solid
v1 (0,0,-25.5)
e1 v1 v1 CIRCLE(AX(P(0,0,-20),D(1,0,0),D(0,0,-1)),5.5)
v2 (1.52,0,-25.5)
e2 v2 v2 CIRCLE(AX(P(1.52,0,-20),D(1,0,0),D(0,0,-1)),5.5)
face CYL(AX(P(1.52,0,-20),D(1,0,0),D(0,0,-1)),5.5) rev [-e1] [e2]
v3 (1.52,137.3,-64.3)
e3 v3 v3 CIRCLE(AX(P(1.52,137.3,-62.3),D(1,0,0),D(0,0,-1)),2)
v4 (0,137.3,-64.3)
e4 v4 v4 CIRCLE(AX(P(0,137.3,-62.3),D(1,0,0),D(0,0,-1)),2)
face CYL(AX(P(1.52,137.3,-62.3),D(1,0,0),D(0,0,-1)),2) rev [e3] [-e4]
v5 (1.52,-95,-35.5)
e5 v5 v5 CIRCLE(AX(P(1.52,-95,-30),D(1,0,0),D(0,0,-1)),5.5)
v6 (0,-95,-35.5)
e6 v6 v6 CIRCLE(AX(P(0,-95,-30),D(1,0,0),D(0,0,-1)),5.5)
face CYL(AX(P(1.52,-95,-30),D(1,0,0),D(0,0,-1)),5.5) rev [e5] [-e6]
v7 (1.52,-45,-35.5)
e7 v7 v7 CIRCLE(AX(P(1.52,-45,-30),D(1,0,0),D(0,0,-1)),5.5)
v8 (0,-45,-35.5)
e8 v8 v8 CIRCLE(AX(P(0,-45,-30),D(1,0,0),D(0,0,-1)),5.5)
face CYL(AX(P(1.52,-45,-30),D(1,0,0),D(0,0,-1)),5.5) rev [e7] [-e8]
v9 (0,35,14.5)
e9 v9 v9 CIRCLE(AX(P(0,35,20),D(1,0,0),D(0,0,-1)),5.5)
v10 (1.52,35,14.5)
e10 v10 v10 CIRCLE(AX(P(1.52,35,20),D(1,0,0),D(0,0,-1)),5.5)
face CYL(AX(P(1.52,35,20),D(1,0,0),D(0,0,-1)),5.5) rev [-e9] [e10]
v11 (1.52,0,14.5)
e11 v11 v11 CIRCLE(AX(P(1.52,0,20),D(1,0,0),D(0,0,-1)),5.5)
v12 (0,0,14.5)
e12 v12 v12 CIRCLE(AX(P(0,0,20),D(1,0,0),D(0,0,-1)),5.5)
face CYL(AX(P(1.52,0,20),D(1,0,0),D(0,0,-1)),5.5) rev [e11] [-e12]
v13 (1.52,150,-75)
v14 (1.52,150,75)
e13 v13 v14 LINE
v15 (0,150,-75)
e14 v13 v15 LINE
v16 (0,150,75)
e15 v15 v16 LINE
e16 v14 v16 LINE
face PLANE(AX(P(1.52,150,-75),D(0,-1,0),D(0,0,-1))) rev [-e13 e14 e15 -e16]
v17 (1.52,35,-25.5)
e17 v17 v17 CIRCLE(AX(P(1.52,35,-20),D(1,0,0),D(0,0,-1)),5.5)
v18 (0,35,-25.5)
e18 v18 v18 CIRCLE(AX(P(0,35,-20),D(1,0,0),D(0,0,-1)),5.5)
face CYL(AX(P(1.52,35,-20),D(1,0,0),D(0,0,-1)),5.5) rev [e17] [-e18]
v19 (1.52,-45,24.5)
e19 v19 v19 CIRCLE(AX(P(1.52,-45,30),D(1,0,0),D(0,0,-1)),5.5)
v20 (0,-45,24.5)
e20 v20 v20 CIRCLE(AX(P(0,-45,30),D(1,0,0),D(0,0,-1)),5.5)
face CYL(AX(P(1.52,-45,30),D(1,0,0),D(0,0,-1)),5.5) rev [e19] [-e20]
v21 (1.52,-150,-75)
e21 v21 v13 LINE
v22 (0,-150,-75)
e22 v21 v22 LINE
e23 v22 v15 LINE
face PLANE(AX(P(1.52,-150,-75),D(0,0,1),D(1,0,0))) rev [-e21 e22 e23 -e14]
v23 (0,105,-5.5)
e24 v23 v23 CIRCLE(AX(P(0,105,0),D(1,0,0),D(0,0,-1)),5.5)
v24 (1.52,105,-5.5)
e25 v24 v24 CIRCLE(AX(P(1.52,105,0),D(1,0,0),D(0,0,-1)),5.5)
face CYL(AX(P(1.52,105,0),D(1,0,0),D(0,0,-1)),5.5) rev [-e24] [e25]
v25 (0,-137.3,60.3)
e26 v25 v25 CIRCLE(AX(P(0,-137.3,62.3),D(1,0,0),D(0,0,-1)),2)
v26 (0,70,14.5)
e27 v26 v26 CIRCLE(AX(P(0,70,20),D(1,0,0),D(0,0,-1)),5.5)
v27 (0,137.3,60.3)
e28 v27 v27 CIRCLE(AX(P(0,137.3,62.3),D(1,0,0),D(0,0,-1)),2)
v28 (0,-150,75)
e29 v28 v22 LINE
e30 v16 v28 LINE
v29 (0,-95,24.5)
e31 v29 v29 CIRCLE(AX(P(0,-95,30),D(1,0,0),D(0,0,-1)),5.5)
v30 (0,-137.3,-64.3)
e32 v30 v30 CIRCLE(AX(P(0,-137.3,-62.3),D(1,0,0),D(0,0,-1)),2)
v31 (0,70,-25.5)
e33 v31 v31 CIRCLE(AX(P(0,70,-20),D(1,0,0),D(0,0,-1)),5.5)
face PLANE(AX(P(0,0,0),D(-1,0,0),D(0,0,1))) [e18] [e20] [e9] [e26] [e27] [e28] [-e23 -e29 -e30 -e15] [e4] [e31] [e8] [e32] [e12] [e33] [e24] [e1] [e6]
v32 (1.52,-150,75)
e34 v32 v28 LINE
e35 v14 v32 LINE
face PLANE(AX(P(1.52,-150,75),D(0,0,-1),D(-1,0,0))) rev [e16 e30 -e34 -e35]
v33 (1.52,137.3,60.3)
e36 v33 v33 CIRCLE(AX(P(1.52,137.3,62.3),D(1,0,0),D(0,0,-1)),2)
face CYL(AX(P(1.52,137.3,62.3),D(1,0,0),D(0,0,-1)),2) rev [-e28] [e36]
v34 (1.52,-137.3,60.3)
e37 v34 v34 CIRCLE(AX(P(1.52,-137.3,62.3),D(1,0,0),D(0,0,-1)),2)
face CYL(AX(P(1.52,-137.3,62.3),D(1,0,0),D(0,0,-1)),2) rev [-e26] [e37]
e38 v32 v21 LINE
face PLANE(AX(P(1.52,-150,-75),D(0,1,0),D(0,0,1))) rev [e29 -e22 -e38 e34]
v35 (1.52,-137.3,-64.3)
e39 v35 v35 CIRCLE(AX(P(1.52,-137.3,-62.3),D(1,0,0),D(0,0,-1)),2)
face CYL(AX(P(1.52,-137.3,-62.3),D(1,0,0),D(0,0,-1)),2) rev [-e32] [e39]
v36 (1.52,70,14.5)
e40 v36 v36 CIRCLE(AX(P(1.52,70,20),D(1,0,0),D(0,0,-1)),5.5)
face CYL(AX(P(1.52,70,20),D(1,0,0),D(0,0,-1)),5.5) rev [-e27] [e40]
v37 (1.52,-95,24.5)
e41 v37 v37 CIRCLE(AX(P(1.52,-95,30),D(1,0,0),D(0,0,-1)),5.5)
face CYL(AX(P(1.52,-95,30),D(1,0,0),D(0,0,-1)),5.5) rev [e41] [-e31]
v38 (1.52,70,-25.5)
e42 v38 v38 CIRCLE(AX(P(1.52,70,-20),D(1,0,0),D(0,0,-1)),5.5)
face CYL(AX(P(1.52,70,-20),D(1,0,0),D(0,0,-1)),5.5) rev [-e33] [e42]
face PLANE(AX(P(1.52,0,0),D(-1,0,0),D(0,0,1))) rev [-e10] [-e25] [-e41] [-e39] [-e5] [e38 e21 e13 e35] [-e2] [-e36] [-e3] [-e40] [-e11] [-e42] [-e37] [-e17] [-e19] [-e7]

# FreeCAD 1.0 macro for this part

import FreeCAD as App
import Part
import Sketcher
from FreeCAD import Vector

doc = App.newDocument("Part")
body = doc.addObject("PartDesign::Body", "Body")

# Sketch on YZ plane
sketch1 = body.newObject("Sketcher::SketchObject", "Sketch")
sketch1.AttachmentSupport = (doc.getObject("YZ_Plane"), [""])
sketch1.MapMode = "FlatFace"
sketch1.addGeometry(Part.LineSegment(Vector(-150, 75, 0), Vector(-150, -75, 0)), False)
sketch1.addGeometry(Part.LineSegment(Vector(-150, -75, 0), Vector(150, -75, 0)), False)
sketch1.addGeometry(Part.LineSegment(Vector(150, -75, 0), Vector(150, 75, 0)), False)
sketch1.addGeometry(Part.LineSegment(Vector(150, 75, 0), Vector(-150, 75, 0)), False)
sketch1.addConstraint(Sketcher.Constraint("Coincident", 0, 2, 1, 1))
sketch1.addConstraint(Sketcher.Constraint("Coincident", 1, 2, 2, 1))
sketch1.addConstraint(Sketcher.Constraint("Coincident", 2, 2, 3, 1))
sketch1.addConstraint(Sketcher.Constraint("Coincident", 3, 2, 0, 1))
sketch1.addConstraint(Sketcher.Constraint("Vertical", 0))
sketch1.addConstraint(Sketcher.Constraint("Horizontal", 1))
sketch1.addConstraint(Sketcher.Constraint("Vertical", 2))
sketch1.addConstraint(Sketcher.Constraint("Horizontal", 3))
sketch1.addConstraint(Sketcher.Constraint("Symmetric", 0, 2, 2, 2, -1, 1))
sketch1.addConstraint(Sketcher.Constraint("DistanceX", 1, 1, 1, 2, 300.0))
sketch1.addConstraint(Sketcher.Constraint("DistanceY", 0, 2, 0, 1, 150.0))
pad1 = body.newObject("PartDesign::Pad", "Pad")
pad1.Profile = sketch1
pad1.Length = 1.52

# Sketch on YZ plane
sketch2 = body.newObject("Sketcher::SketchObject", "Sketch001")
sketch2.AttachmentSupport = (doc.getObject("YZ_Plane"), [""])
sketch2.MapMode = "FlatFace"
sketch2.AttachmentOffset = App.Placement(Vector(0, 0, 1.52), App.Rotation())
sketch2.addGeometry(Part.Circle(Vector(-137.3, 62.3, 0), Vector(0, 0, 1), 2), False)
sketch2.addConstraint(Sketcher.Constraint("Diameter", 0, 4.0))
sketch2.addConstraint(Sketcher.Constraint("DistanceX", 0, 3, -1, 1, 137.3))
sketch2.addConstraint(Sketcher.Constraint("DistanceY", -1, 1, 0, 3, 62.3))
doc.recompute()
hole = body.newObject("PartDesign::Hole", "Hole")
hole.Profile = sketch2
hole.ThreadType = "None"
hole.Diameter = 4
hole.DepthType = "ThroughAll"
doc.recompute()

mirrored = body.newObject("PartDesign::Mirrored", "Mirrored")
mirrored.Originals = [hole]
mirrored.MirrorPlane = (doc.getObject("XZ_Plane"), [""])
body.Tip = mirrored
doc.recompute()

mirrored2 = body.newObject("PartDesign::Mirrored", "Mirrored001")
mirrored2.Originals = [hole]
mirrored2.MirrorPlane = (doc.getObject("XY_Plane"), [""])
body.Tip = mirrored2

# Sketch on YZ plane
sketch3 = body.newObject("Sketcher::SketchObject", "Sketch002")
sketch3.AttachmentSupport = (doc.getObject("YZ_Plane"), [""])
sketch3.MapMode = "FlatFace"
sketch3.AttachmentOffset = App.Placement(Vector(0, 0, 1.52), App.Rotation())
sketch3.addGeometry(Part.Circle(Vector(137.3, -62.3, 0), Vector(0, 0, 1), 2), False)
sketch3.addConstraint(Sketcher.Constraint("Diameter", 0, 4.0))
sketch3.addConstraint(Sketcher.Constraint("DistanceX", -1, 1, 0, 3, 137.3))
sketch3.addConstraint(Sketcher.Constraint("DistanceY", 0, 3, -1, 1, 62.3))
doc.recompute()
hole2 = body.newObject("PartDesign::Hole", "Hole001")
hole2.Profile = sketch3
hole2.ThreadType = "None"
hole2.Diameter = 4
hole2.DepthType = "ThroughAll"

# Sketch on YZ plane
sketch4 = body.newObject("Sketcher::SketchObject", "Sketch003")
sketch4.AttachmentSupport = (doc.getObject("YZ_Plane"), [""])
sketch4.MapMode = "FlatFace"
sketch4.AttachmentOffset = App.Placement(Vector(0, 0, 1.52), App.Rotation())
sketch4.addGeometry(Part.Circle(Vector(-95, 30, 0), Vector(0, 0, 1), 6), False)
sketch4.addGeometry(Part.Circle(Vector(-45, 30, 0), Vector(0, 0, 1), 6), False)
sketch4.addConstraint(Sketcher.Constraint("Equal", 0, 1))
sketch4.addConstraint(Sketcher.Constraint("Horizontal", 0, 3, 1, 3))
sketch4.addConstraint(Sketcher.Constraint("Diameter", 0, 11.0))
sketch4.addConstraint(Sketcher.Constraint("DistanceX", 0, 3, -1, 1, 95.0))
sketch4.addConstraint(Sketcher.Constraint("DistanceY", -1, 1, 0, 3, 30.0))
sketch4.addConstraint(Sketcher.Constraint("DistanceX", 1, 3, -1, 1, 45.0))
doc.recompute()
hole3 = body.newObject("PartDesign::Hole", "Hole002")
hole3.Profile = sketch4
hole3.ThreadType = "None"
hole3.Diameter = 11
hole3.DepthType = "ThroughAll"
doc.recompute()

mirrored3 = body.newObject("PartDesign::Mirrored", "Mirrored002")
mirrored3.Originals = [hole3]
mirrored3.MirrorPlane = (doc.getObject("XY_Plane"), [""])
body.Tip = mirrored3

# Sketch on YZ plane
sketch5 = body.newObject("Sketcher::SketchObject", "Sketch004")
sketch5.AttachmentSupport = (doc.getObject("YZ_Plane"), [""])
sketch5.MapMode = "FlatFace"
sketch5.AttachmentOffset = App.Placement(Vector(0, 0, 1.52), App.Rotation())
sketch5.addGeometry(Part.Circle(Vector(0, 20, 0), Vector(0, 0, 1), 6), False)
sketch5.addGeometry(Part.Circle(Vector(35, 20, 0), Vector(0, 0, 1), 6), False)
sketch5.addGeometry(Part.Circle(Vector(70, 20, 0), Vector(0, 0, 1), 6), False)
sketch5.addConstraint(Sketcher.Constraint("Equal", 0, 1))
sketch5.addConstraint(Sketcher.Constraint("Equal", 1, 2))
sketch5.addConstraint(Sketcher.Constraint("PointOnObject", 0, 3, -2))
sketch5.addConstraint(Sketcher.Constraint("Horizontal", 0, 3, 1, 3))
sketch5.addConstraint(Sketcher.Constraint("Horizontal", 1, 3, 2, 3))
sketch5.addConstraint(Sketcher.Constraint("Diameter", 0, 11.0))
sketch5.addConstraint(Sketcher.Constraint("DistanceY", -1, 1, 0, 3, 20.0))
sketch5.addConstraint(Sketcher.Constraint("DistanceX", -1, 1, 1, 3, 35.0))
sketch5.addConstraint(Sketcher.Constraint("DistanceX", -1, 1, 2, 3, 70.0))
doc.recompute()
hole4 = body.newObject("PartDesign::Hole", "Hole003")
hole4.Profile = sketch5
hole4.ThreadType = "None"
hole4.Diameter = 11
hole4.DepthType = "ThroughAll"
doc.recompute()

mirrored4 = body.newObject("PartDesign::Mirrored", "Mirrored003")
mirrored4.Originals = [hole4]
mirrored4.MirrorPlane = (doc.getObject("XY_Plane"), [""])
body.Tip = mirrored4

# Sketch on YZ plane
sketch6 = body.newObject("Sketcher::SketchObject", "Sketch005")
sketch6.AttachmentSupport = (doc.getObject("YZ_Plane"), [""])
sketch6.MapMode = "FlatFace"
sketch6.AttachmentOffset = App.Placement(Vector(0, 0, 1.52), App.Rotation())
sketch6.addGeometry(Part.Circle(Vector(105, 0, 0), Vector(0, 0, 1), 6), False)
sketch6.addConstraint(Sketcher.Constraint("PointOnObject", 0, 3, -1))
sketch6.addConstraint(Sketcher.Constraint("Diameter", 0, 11.0))
sketch6.addConstraint(Sketcher.Constraint("DistanceX", -1, 1, 0, 3, 105.0))
doc.recompute()
hole5 = body.newObject("PartDesign::Hole", "Hole004")
hole5.Profile = sketch6
hole5.ThreadType = "None"
hole5.Diameter = 11
hole5.DepthType = "ThroughAll"

doc.recompute()
